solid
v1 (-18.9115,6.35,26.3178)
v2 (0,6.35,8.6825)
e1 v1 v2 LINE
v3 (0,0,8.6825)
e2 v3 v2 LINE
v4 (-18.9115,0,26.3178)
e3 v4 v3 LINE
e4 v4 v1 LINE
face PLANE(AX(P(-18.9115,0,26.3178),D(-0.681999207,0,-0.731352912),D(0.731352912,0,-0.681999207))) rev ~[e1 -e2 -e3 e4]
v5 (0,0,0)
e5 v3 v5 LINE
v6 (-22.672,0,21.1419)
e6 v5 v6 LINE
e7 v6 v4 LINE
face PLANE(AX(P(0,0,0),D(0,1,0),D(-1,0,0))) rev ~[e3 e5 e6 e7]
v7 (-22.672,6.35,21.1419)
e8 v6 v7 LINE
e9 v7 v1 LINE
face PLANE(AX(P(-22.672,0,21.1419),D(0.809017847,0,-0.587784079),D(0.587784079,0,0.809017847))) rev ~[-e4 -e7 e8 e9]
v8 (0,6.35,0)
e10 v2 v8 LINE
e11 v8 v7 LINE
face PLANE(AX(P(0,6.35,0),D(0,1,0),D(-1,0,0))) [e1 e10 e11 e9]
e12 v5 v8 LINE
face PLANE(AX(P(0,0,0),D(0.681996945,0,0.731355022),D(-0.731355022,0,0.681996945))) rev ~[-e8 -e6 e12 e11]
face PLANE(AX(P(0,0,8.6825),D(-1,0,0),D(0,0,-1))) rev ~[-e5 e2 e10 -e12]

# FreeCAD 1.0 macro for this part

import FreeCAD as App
import Part
import Sketcher
from FreeCAD import Vector
Q = App.Units.Quantity

doc = App.newDocument("Part")
params = doc.addObject("Spreadsheet::Sheet", "Params")
for row, (alias, value) in enumerate([
    ("sketch1_length", "31 mm"),
    ("pad1_length", "6.35 mm"),
], start=1):
    params.set(f"A{row}", alias)
    params.set(f"B{row}", "=" + value)
    params.setAlias(f"B{row}", alias)

body = doc.addObject("PartDesign::Body", "Body")

sketch1 = body.newObject("Sketcher::SketchObject", "Sketch")
sketch1.AttachmentSupport = (doc.getObject("XZ_Plane"), [""])
sketch1.MapMode = "FlatFace"
sketch1.addGeometry([
    Part.LineSegment(Vector(0, 9, 0), Vector(0, 0, 0)),
    Part.LineSegment(Vector(0, 0, 0), Vector(-23, 21, 0)),
    Part.LineSegment(Vector(-23, 21, 0), Vector(-19, 26, 0)),
    Part.LineSegment(Vector(-19, 26, 0), Vector(0, 9, 0)),
], False)
sketch1.addConstraint([
    Sketcher.Constraint("Coincident", 0, 2, 1, 1),
    Sketcher.Constraint("Coincident", 1, 2, 2, 1),
    Sketcher.Constraint("Coincident", 2, 2, 3, 1),
    Sketcher.Constraint("Coincident", 3, 2, 0, 1),
    Sketcher.Constraint("Vertical", 0),
    Sketcher.Constraint("Coincident", 0, 2, -1, 1),
    Sketcher.Constraint("Parallel", 1, 3),
    Sketcher.Constraint("Angle", 3, Q("-43 deg")),
    Sketcher.Constraint("Distance", 1, 31.0),
    Sketcher.Constraint("Angle", 2, Q("54 deg")),
    Sketcher.Constraint("DistanceY", 0, 2, 0, 1, 8.6825),
])
sketch1.setExpression("Constraints[8]", "Params.sketch1_length")
pad1 = body.newObject("PartDesign::Pad", "Pad")
pad1.Profile = sketch1
pad1.setExpression("Length", "Params.pad1_length")
pad1.Reversed = True

doc.recompute()
